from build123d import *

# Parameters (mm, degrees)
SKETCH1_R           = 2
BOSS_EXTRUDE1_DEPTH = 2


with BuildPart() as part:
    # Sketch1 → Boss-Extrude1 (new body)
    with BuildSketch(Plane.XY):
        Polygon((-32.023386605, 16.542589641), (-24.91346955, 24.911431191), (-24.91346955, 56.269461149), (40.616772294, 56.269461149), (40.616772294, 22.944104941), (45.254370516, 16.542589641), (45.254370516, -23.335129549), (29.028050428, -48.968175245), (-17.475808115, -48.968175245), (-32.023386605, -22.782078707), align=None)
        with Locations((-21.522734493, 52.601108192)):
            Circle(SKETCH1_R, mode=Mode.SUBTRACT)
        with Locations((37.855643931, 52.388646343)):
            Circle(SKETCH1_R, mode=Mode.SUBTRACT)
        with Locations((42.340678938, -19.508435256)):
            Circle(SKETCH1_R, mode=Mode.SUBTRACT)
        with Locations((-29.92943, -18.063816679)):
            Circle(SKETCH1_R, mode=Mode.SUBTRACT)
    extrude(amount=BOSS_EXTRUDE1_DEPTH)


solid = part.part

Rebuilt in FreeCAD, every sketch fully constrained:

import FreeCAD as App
import Part
import Sketcher
from FreeCAD import Vector


def add_polygon(sketch, points):
    """Adds a closed chain of lines whose ends are joined by coincident constraints."""
    first, n = sketch.GeometryCount, len(points)
    for a, b in zip(points, points[1:] + points[:1]):
        sketch.addGeometry(Part.LineSegment(App.Vector(*a, 0), App.Vector(*b, 0)), False)
    for i in range(n):
        sketch.addConstraint(Sketcher.Constraint("Coincident", first + i, 2, first + (i + 1) % n, 1))

doc = App.newDocument("Part")
body = doc.addObject("PartDesign::Body", "Body")

# Sketch on XY plane
sketch1 = body.newObject("Sketcher::SketchObject", "Sketch")
sketch1.AttachmentSupport = (doc.getObject("XY_Plane"), [""])
sketch1.MapMode = "FlatFace"
add_polygon(sketch1, [(-24.9, 24.9), (-32, 16.5), (-32, -22.8), (-17.5, -49), (29, -49), (45.3, -23.3), (45.3, 16.5), (40.6, 22.9), (40.6, 56.3), (-24.9, 56.3)])  # lines 0-9
sketch1.addGeometry(Part.Circle(Vector(42.3, -19.5, 0), Vector(0, 0, 1), 2), False)  # 10
sketch1.addGeometry(Part.Circle(Vector(-29.9, -18.1, 0), Vector(0, 0, 1), 2), False)  # 11
sketch1.addGeometry(Part.Circle(Vector(37.9, 52.4, 0), Vector(0, 0, 1), 2), False)  # 12
sketch1.addGeometry(Part.Circle(Vector(-21.5, 52.6, 0), Vector(0, 0, 1), 2), False)  # 13
sketch1.addConstraint([
    Sketcher.Constraint("Vertical", 1),
    Sketcher.Constraint("Horizontal", 3),
    Sketcher.Constraint("Vertical", 5),
    Sketcher.Constraint("Vertical", 7),
    Sketcher.Constraint("Horizontal", 8),
    Sketcher.Constraint("Vertical", 9),
    Sketcher.Constraint("Equal", 10, 11),
    Sketcher.Constraint("Equal", 11, 12),
    Sketcher.Constraint("Equal", 12, 13),
    Sketcher.Constraint("Horizontal", 0, 2, 5, 2),
    Sketcher.Constraint("Diameter", 10, 4.0),
    Sketcher.Constraint("DistanceX", 3, 1, 3, 2, 46.503859),
    Sketcher.Constraint("DistanceX", 8, 2, 8, 1, 65.530242),
    Sketcher.Constraint("DistanceY", 1, 2, 1, 1, 39.324668),
    Sketcher.Constraint("DistanceY", 5, 1, 5, 2, 39.877719),
    Sketcher.Constraint("DistanceY", 9, 2, 9, 1, 31.35803),
    Sketcher.Constraint("DistanceX", 11, 3, 4, 2, 75.183801),
    Sketcher.Constraint("DistanceX", 6, 2, 5, 2, 4.637598),
    Sketcher.Constraint("DistanceY", 7, 1, 7, 2, 33.325356),
    Sketcher.Constraint("DistanceX", -1, 1, 10, 3, 42.340679),
    Sketcher.Constraint("DistanceX", 11, 3, -1, 1, 29.92943),
    Sketcher.Constraint("DistanceY", -1, 1, 13, 3, 52.601108),
    Sketcher.Constraint("DistanceY", -1, 1, 0, 2, 16.54259),
    Sketcher.Constraint("DistanceX", 2, 2, -1, 1, 17.475808),
    Sketcher.Constraint("DistanceY", -1, 1, 7, 2, 56.269461),
    Sketcher.Constraint("DistanceY", 10, 3, 11, 3, 1.444619),
    Sketcher.Constraint("DistanceY", 10, 3, 12, 3, 71.897082),
    Sketcher.Constraint("DistanceX", 13, 3, 12, 3, 59.378378),
    Sketcher.Constraint("DistanceY", 12, 3, 13, 3, 0.212462),
    Sketcher.Constraint("DistanceX", 0, 2, 12, 3, 69.879031),
    Sketcher.Constraint("DistanceX", 1, 2, 2, 2, 14.547578),
    Sketcher.Constraint("DistanceY", 2, 2, 11, 3, 30.904359),
])
pad1 = body.newObject("PartDesign::Pad", "Pad")
pad1.Profile = sketch1
pad1.Length = 2

doc.recompute()
